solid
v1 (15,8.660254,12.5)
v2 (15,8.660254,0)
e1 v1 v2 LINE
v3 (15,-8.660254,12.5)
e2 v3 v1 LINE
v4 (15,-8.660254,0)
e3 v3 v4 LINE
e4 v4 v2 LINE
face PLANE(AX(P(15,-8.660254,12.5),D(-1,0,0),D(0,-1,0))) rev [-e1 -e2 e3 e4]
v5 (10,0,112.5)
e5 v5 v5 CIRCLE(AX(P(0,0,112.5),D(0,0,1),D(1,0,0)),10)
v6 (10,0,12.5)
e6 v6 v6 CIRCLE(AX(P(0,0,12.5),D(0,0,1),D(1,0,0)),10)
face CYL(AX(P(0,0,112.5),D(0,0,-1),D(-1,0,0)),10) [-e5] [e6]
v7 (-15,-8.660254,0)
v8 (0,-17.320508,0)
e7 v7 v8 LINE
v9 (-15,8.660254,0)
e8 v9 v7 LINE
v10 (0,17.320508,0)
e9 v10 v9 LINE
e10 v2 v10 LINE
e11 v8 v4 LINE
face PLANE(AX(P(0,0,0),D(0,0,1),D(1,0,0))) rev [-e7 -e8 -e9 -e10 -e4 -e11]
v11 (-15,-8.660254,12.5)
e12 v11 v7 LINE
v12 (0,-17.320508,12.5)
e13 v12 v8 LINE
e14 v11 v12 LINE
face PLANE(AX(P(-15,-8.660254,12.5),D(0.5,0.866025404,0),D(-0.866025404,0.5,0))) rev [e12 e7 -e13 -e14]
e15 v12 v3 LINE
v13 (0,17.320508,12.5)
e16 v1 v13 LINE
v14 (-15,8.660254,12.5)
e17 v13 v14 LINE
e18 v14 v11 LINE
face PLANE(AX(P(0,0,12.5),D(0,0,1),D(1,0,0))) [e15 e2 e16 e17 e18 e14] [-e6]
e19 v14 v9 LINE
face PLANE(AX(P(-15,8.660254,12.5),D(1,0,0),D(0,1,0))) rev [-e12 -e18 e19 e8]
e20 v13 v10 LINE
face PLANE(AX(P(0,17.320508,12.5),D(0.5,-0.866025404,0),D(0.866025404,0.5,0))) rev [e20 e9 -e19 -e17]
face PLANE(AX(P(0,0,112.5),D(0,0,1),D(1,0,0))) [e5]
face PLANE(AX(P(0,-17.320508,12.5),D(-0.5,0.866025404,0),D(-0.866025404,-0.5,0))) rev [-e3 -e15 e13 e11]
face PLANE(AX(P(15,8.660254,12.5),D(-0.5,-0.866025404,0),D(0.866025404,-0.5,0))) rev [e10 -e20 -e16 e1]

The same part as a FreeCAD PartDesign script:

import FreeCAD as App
import Part
import Sketcher

V = App.Vector
Q = App.Units.Quantity

doc = App.newDocument("Part")
body = doc.addObject("PartDesign::Body", "Body")

# Sketch on XY plane
sketch1 = body.newObject("Sketcher::SketchObject", "Sketch")
sketch1.AttachmentSupport = (doc.getObject("XY_Plane"), [""])
sketch1.MapMode = "FlatFace"
sketch1.addGeometry(Part.LineSegment(V(15, 9, 0), V(0, 17, 0)), False)
sketch1.addGeometry(Part.LineSegment(V(0, 17, 0), V(-15, 9, 0)), False)
sketch1.addGeometry(Part.LineSegment(V(-15, 9, 0), V(-15, -9, 0)), False)
sketch1.addGeometry(Part.LineSegment(V(-15, -9, 0), V(0, -17, 0)), False)
sketch1.addGeometry(Part.LineSegment(V(0, -17, 0), V(15, -9, 0)), False)
sketch1.addGeometry(Part.LineSegment(V(15, -9, 0), V(15, 9, 0)), False)
sketch1.addConstraint(Sketcher.Constraint("Coincident", 0, 2, 1, 1))
sketch1.addConstraint(Sketcher.Constraint("Coincident", 1, 2, 2, 1))
sketch1.addConstraint(Sketcher.Constraint("Coincident", 2, 2, 3, 1))
sketch1.addConstraint(Sketcher.Constraint("Coincident", 3, 2, 4, 1))
sketch1.addConstraint(Sketcher.Constraint("Coincident", 4, 2, 5, 1))
sketch1.addConstraint(Sketcher.Constraint("Coincident", 5, 2, 0, 1))
sketch1.addConstraint(Sketcher.Constraint("Vertical", 2))
sketch1.addConstraint(Sketcher.Constraint("Vertical", 5))
sketch1.addConstraint(Sketcher.Constraint("Symmetric", 0, 2, 3, 2, -1, 1))
sketch1.addConstraint(Sketcher.Constraint("Symmetric", 1, 2, 4, 2, -1, 1))
sketch1.addConstraint(Sketcher.Constraint("PointOnObject", 0, 2, -2))
sketch1.addConstraint(Sketcher.Constraint("Parallel", 0, 3))
sketch1.addConstraint(Sketcher.Constraint("Horizontal", 2, 2, 4, 2))
sketch1.addConstraint(Sketcher.Constraint("Angle", 0, Q("150 deg")))
sketch1.addConstraint(Sketcher.Constraint("DistanceX", 1, 2, -1, 1, 15.0))
sketch1.addConstraint(Sketcher.Constraint("DistanceY", 2, 2, 2, 1, 17.320508))
pad1 = body.newObject("PartDesign::Pad", "Pad")
pad1.Profile = sketch1
pad1.Length = 12.5

# Sketch on XY plane
sketch2 = body.newObject("Sketcher::SketchObject", "Sketch001")
sketch2.AttachmentSupport = (doc.getObject("XY_Plane"), [""])
sketch2.MapMode = "FlatFace"
sketch2.AttachmentOffset = App.Placement(V(0, 0, 12.5), App.Rotation())
sketch2.addGeometry(Part.Circle(V(0, 0, 0), V(0, 0, 1), 10), False)
sketch2.addConstraint(Sketcher.Constraint("Coincident", 0, 3, -1, 1))
sketch2.addConstraint(Sketcher.Constraint("Diameter", 0, 20.0))
pad2 = body.newObject("PartDesign::Pad", "Pad001")
pad2.Profile = sketch2
pad2.Length = 100

doc.recompute()
